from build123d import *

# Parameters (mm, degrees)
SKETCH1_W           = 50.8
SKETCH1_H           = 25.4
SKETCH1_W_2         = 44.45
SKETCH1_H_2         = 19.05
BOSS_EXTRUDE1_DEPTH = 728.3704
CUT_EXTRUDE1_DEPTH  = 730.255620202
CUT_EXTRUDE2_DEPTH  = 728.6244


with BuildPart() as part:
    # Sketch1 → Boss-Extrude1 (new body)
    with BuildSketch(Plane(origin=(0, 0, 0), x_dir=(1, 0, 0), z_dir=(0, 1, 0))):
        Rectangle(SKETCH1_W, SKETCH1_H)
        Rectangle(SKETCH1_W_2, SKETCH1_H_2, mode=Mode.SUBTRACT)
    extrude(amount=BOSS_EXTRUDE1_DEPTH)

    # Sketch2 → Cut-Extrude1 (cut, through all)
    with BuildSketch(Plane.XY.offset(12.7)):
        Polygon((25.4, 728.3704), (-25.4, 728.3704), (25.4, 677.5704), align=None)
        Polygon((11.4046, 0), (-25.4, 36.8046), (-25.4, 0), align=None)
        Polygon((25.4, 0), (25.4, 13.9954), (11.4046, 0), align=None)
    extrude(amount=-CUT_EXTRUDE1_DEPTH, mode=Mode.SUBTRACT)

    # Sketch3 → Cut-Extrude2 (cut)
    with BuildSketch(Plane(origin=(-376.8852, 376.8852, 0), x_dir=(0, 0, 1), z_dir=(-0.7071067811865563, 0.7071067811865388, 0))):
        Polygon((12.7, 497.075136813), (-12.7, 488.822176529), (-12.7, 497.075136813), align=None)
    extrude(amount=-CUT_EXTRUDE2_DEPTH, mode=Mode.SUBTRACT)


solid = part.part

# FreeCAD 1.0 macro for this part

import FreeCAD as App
import Part
import Sketcher
from FreeCAD import Vector
Q = App.Units.Quantity

doc = App.newDocument("Part")
body = doc.addObject("PartDesign::Body", "Body")

# Sketch on XZ plane
sketch1 = doc.addObject("Sketcher::SketchObject", "Sketch")
body.addObject(sketch1)
sketch1.AttachmentSupport = (doc.XZ_Plane, [""])
sketch1.MapMode = "FlatFace"
sketch1.addGeometry([
    Part.LineSegment(Vector(-25, -13, 0), Vector(-25, 13, 0)),  # 0
    Part.LineSegment(Vector(-25, 13, 0), Vector(25, 13, 0)),  # 1
    Part.LineSegment(Vector(25, 13, 0), Vector(25, -13, 0)),  # 2
    Part.LineSegment(Vector(25, -13, 0), Vector(-25, -13, 0)),  # 3
    Part.LineSegment(Vector(22, 10, 0), Vector(-22, 10, 0)),  # 4
    Part.LineSegment(Vector(-22, 10, 0), Vector(-22, -10, 0)),  # 5
    Part.LineSegment(Vector(-22, -10, 0), Vector(22, -10, 0)),  # 6
    Part.LineSegment(Vector(22, -10, 0), Vector(22, 10, 0)),  # 7
], False)
sketch1.addConstraint([
    Sketcher.Constraint("Coincident", 0, 2, 1, 1),
    Sketcher.Constraint("Coincident", 1, 2, 2, 1),
    Sketcher.Constraint("Coincident", 2, 2, 3, 1),
    Sketcher.Constraint("Coincident", 3, 2, 0, 1),
    Sketcher.Constraint("Coincident", 4, 2, 5, 1),
    Sketcher.Constraint("Coincident", 5, 2, 6, 1),
    Sketcher.Constraint("Coincident", 6, 2, 7, 1),
    Sketcher.Constraint("Coincident", 7, 2, 4, 1),
    Sketcher.Constraint("Vertical", 0),
    Sketcher.Constraint("Horizontal", 1),
    Sketcher.Constraint("Vertical", 2),
    Sketcher.Constraint("Horizontal", 3),
    Sketcher.Constraint("Horizontal", 4),
    Sketcher.Constraint("Vertical", 5),
    Sketcher.Constraint("Horizontal", 6),
    Sketcher.Constraint("Vertical", 7),
    Sketcher.Constraint("Symmetric", 0, 2, 2, 2, -1, 1),
    Sketcher.Constraint("Symmetric", 4, 2, 6, 2, -1, 1),
    Sketcher.Constraint("DistanceX", 1, 1, 1, 2, Q("2 in")),
    Sketcher.Constraint("DistanceY", 0, 1, 0, 2, Q("1 in")),
    Sketcher.Constraint("DistanceX", 4, 2, 4, 1, Q("1.75 in")),
    Sketcher.Constraint("DistanceY", 5, 2, 5, 1, Q("0.75 in")),
])
pad1 = doc.addObject("PartDesign::Pad", "Pad")
body.addObject(pad1)
pad1.Profile = sketch1
pad1.Length = Q("28.676 in")
pad1.Reversed = True

# Sketch on XY plane
sketch2 = doc.addObject("Sketcher::SketchObject", "Sketch001")
body.addObject(sketch2)
sketch2.AttachmentSupport = (doc.XY_Plane, [""])
sketch2.MapMode = "FlatFace"
sketch2.AttachmentOffset = App.Placement(Vector(0, 0, 0.5 * 25.4), App.Rotation())
sketch2.addGeometry([
    Part.LineSegment(Vector(25, 728, 0), Vector(-25, 728, 0)),  # 0
    Part.LineSegment(Vector(-25, 728, 0), Vector(25, 678, 0)),  # 1
    Part.LineSegment(Vector(25, 678, 0), Vector(25, 728, 0)),  # 2
    Part.LineSegment(Vector(11, 0, 0), Vector(-25, 37, 0)),  # 3
    Part.LineSegment(Vector(-25, 37, 0), Vector(-25, 0, 0)),  # 4
    Part.LineSegment(Vector(-25, 0, 0), Vector(11, 0, 0)),  # 5
    Part.LineSegment(Vector(25, 0, 0), Vector(25, 14, 0)),  # 6
    Part.LineSegment(Vector(25, 14, 0), Vector(11, 0, 0)),  # 7
    Part.LineSegment(Vector(11, 0, 0), Vector(25, 0, 0)),  # 8
], False)
sketch2.addConstraint([
    Sketcher.Constraint("Coincident", 0, 2, 1, 1),
    Sketcher.Constraint("Coincident", 1, 2, 2, 1),
    Sketcher.Constraint("Coincident", 2, 2, 0, 1),
    Sketcher.Constraint("Coincident", 3, 2, 4, 1),
    Sketcher.Constraint("Coincident", 4, 2, 5, 1),
    Sketcher.Constraint("Coincident", 5, 2, 3, 1),
    Sketcher.Constraint("Coincident", 6, 2, 7, 1),
    Sketcher.Constraint("Coincident", 7, 2, 8, 1),
    Sketcher.Constraint("Coincident", 8, 2, 6, 1),
    Sketcher.Constraint("Horizontal", 0),
    Sketcher.Constraint("Vertical", 2),
    Sketcher.Constraint("Vertical", 4),
    Sketcher.Constraint("Horizontal", 5),
    Sketcher.Constraint("Vertical", 6),
    Sketcher.Constraint("Horizontal", 8),
    Sketcher.Constraint("Coincident", 7, 2, 5, 2),
    Sketcher.Constraint("Symmetric", 4, 2, 8, 2, -1, 1),
    Sketcher.Constraint("Parallel", 1, 3),
    Sketcher.Constraint("Perpendicular", 3, 7),
    Sketcher.Constraint("Vertical", 0, 2, 3, 2),
    Sketcher.Constraint("Vertical", 2, 2, 6, 2),
    Sketcher.Constraint("Equal", 0, 2),
    Sketcher.Constraint("DistanceX", 0, 2, 0, 1, Q("2 in")),
    Sketcher.Constraint("DistanceX", 5, 1, 5, 2, Q("1.449 in")),
    Sketcher.Constraint("DistanceY", -1, 1, 0, 2, Q("28.676 in")),
])
pocket1 = doc.addObject("PartDesign::Pocket", "Pocket")
body.addObject(pocket1)
pocket1.Profile = sketch2
pocket1.Type = "ThroughAll"

# Sketch on an angled plane
sketch3 = doc.addObject("Sketcher::SketchObject", "Sketch002")
body.addObject(sketch3)
sketch3.Placement = App.Placement(Vector(-376.8852, 376.8852, 0), App.Rotation(Vector(0, 0, 1), Vector(0.707106781, 0.707106781, 0), Vector(-0.707106781, 0.707106781, 0), "ZXY"))
sketch3.addGeometry([
    Part.LineSegment(Vector(-13, 489, 0), Vector(13, 497, 0)),
    Part.LineSegment(Vector(13, 497, 0), Vector(-13, 497, 0)),
    Part.LineSegment(Vector(-13, 497, 0), Vector(-13, 489, 0)),
], False)
sketch3.addConstraint([
    Sketcher.Constraint("Coincident", 0, 2, 1, 1),
    Sketcher.Constraint("Coincident", 1, 2, 2, 1),
    Sketcher.Constraint("Coincident", 2, 2, 0, 1),
    Sketcher.Constraint("Horizontal", 1),
    Sketcher.Constraint("Vertical", 2),
    Sketcher.Constraint("DistanceX", 1, 2, 1, 1, Q("1 in")),
    Sketcher.Constraint("Angle", 0, Q("18 deg")),
    Sketcher.Constraint("DistanceX", -1, 1, 0, 2, Q("0.5 in")),
    Sketcher.Constraint("DistanceY", -1, 1, 0, 2, Q("497.075137 mm")),
])
pocket2 = doc.addObject("PartDesign::Pocket", "Pocket001")
body.addObject(pocket2)
pocket2.Profile = sketch3
pocket2.Length = Q("28.686 in")

doc.recompute()
